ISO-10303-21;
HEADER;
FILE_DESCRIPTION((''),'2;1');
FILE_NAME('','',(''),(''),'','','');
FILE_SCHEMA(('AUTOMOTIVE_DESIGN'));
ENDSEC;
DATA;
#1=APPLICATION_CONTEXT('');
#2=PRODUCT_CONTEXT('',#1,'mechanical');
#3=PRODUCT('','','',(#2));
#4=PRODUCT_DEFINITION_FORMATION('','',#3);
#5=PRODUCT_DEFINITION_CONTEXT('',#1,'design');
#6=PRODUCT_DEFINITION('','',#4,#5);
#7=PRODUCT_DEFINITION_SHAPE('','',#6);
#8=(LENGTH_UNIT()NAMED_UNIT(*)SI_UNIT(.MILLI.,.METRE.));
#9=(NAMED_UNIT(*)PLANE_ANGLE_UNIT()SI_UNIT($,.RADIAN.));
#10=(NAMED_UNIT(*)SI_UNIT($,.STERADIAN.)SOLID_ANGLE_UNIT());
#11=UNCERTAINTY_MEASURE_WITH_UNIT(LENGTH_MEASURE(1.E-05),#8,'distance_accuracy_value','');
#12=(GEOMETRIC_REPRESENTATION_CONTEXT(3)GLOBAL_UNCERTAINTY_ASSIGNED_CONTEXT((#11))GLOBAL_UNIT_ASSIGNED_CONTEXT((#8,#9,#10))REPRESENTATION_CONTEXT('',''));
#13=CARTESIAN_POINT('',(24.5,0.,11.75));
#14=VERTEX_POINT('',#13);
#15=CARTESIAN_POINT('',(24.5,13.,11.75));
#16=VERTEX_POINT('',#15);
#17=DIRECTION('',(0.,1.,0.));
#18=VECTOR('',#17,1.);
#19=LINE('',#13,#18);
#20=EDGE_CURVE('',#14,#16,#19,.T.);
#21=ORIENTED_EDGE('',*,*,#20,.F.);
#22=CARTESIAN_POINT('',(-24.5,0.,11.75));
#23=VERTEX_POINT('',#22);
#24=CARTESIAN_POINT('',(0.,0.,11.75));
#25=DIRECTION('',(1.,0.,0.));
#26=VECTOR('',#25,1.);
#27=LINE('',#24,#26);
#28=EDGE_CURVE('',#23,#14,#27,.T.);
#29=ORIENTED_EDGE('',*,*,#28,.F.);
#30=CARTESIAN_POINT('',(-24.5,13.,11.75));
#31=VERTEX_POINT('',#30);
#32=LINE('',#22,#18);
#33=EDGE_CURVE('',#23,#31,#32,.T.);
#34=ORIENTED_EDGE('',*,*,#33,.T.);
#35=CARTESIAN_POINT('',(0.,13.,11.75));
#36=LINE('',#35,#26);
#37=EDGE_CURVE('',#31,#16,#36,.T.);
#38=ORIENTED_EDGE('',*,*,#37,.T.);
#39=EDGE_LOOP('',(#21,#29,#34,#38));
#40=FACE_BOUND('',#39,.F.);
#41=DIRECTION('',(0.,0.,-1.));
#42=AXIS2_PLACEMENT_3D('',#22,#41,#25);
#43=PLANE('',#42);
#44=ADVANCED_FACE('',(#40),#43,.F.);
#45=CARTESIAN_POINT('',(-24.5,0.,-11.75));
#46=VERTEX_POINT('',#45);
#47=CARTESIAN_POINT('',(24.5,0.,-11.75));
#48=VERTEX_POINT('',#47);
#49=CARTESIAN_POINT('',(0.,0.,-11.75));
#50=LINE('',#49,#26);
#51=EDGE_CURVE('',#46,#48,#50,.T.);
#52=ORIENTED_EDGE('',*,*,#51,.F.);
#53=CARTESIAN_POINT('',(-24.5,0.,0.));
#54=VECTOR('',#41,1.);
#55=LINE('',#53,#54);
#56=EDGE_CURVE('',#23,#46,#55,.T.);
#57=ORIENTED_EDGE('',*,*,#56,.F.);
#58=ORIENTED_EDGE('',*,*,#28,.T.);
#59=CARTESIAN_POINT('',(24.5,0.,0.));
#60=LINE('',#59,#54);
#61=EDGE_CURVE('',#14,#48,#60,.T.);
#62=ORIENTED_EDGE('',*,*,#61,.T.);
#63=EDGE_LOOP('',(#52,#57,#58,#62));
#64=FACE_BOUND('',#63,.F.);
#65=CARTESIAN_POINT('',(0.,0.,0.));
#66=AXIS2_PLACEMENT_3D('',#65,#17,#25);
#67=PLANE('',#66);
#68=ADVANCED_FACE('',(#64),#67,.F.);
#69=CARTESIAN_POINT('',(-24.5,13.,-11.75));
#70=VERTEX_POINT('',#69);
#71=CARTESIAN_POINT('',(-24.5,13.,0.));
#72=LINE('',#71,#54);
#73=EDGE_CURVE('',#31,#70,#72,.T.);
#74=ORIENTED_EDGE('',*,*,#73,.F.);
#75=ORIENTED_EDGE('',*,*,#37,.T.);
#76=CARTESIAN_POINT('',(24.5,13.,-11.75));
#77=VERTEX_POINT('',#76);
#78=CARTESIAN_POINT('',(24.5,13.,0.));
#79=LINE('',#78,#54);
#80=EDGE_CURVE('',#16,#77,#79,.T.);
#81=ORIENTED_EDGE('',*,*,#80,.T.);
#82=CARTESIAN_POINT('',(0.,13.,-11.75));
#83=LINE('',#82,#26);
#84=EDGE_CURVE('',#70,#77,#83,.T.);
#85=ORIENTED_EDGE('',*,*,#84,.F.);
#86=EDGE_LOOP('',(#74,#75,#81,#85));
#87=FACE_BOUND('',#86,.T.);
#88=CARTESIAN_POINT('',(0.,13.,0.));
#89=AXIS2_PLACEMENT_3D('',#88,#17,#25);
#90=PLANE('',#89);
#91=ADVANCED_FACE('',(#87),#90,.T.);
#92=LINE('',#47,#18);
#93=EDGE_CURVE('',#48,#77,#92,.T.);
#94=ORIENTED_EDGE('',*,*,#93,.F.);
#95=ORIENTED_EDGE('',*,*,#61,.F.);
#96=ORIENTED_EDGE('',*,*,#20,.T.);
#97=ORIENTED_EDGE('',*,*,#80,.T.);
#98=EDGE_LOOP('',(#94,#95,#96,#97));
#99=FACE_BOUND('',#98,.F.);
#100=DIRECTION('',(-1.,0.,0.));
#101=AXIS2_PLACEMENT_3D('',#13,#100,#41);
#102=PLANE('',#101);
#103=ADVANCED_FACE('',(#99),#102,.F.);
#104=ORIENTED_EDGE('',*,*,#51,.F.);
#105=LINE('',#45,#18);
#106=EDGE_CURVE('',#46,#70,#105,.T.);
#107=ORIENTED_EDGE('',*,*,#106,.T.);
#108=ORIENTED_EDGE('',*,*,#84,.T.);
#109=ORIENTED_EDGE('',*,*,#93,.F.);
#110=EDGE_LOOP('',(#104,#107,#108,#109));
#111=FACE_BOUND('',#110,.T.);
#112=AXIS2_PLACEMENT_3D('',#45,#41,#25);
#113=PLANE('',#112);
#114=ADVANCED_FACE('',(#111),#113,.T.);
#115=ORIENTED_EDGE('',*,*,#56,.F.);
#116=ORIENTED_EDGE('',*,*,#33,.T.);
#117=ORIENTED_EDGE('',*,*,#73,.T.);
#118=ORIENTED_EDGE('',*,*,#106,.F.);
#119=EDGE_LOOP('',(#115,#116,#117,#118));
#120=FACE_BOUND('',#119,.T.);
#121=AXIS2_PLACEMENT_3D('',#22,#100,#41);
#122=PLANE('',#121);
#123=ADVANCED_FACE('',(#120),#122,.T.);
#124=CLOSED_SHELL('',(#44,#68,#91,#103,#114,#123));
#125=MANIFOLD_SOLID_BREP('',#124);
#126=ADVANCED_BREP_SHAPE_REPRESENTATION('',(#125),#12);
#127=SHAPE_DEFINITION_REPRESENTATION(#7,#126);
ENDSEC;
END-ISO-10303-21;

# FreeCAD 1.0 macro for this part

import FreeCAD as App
import Part
import Sketcher

V = App.Vector
Q = App.Units.Quantity

doc = App.newDocument("Part")
body = doc.addObject("PartDesign::Body", "Body")

sketch1 = body.newObject("Sketcher::SketchObject", "Sketch")
sketch1.AttachmentSupport = (doc.getObject("XZ_Plane"), [""])
sketch1.MapMode = "FlatFace"
sketch1.addGeometry([
    Part.LineSegment(V(-24, -12, 0), V(-24, 12, 0)),
    Part.LineSegment(V(-24, 12, 0), V(24, 12, 0)),
    Part.LineSegment(V(24, 12, 0), V(24, -12, 0)),
    Part.LineSegment(V(24, -12, 0), V(-24, -12, 0)),
], False)
sketch1.addConstraint([
    Sketcher.Constraint("Coincident", 0, 2, 1, 1),
    Sketcher.Constraint("Coincident", 1, 2, 2, 1),
    Sketcher.Constraint("Coincident", 2, 2, 3, 1),
    Sketcher.Constraint("Coincident", 3, 2, 0, 1),
    Sketcher.Constraint("Vertical", 0),
    Sketcher.Constraint("Horizontal", 1),
    Sketcher.Constraint("Vertical", 2),
    Sketcher.Constraint("Horizontal", 3),
    Sketcher.Constraint("Symmetric", 0, 2, 2, 2, -1, 1),
    Sketcher.Constraint("DistanceX", 1, 1, 1, 2, Q("49 mm")),
    Sketcher.Constraint("DistanceY", 0, 1, 0, 2, Q("23.5 mm")),
])
pad1 = body.newObject("PartDesign::Pad", "Pad")
pad1.Profile = sketch1
pad1.Length = 13
pad1.Reversed = True

doc.recompute()
